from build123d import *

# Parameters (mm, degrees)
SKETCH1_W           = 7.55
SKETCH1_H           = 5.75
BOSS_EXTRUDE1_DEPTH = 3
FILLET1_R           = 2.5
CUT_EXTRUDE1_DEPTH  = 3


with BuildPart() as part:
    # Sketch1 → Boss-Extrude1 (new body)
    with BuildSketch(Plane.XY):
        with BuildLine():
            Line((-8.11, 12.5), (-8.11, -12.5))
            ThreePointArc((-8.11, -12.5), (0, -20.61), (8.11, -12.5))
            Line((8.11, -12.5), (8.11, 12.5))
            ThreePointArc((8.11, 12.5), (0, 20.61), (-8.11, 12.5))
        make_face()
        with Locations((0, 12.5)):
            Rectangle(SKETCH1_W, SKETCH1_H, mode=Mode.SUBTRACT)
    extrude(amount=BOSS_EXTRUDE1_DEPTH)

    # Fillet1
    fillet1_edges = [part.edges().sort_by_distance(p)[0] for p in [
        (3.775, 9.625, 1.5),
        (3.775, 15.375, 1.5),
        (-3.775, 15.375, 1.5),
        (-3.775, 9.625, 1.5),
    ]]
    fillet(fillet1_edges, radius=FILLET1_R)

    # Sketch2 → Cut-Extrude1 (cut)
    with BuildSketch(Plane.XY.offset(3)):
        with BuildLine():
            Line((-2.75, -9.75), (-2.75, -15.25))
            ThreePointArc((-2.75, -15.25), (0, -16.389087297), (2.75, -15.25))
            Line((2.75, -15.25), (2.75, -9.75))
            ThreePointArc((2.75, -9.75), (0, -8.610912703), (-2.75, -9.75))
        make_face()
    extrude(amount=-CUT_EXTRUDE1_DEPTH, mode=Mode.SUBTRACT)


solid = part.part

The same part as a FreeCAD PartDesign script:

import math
import FreeCAD as App
import Part
import Sketcher

V = App.Vector
Q = App.Units.Quantity


def edges_at(feature, points):
    """Names of the edges that pass closest to the given points."""
    edges = feature.Shape.Edges
    near = lambda p: min(range(len(edges)), key=lambda i: edges[i].distToShape(Part.Vertex(*p))[0])
    return sorted({f"Edge{near(p) + 1}" for p in points})

doc = App.newDocument("Part")
body = doc.addObject("PartDesign::Body", "Body")

sketch1 = body.newObject("Sketcher::SketchObject", "Sketch")
sketch1.AttachmentSupport = (doc.getObject("XY_Plane"), [""])
sketch1.MapMode = "FlatFace"
sketch1.addGeometry([
    Part.LineSegment(V(-8, 12, 0), V(-8, -12, 0)),
    Part.ArcOfCircle(Part.Circle(V(0, -12, 0), V(0, 0, 1), 8), math.radians(180), math.radians(360)),
    Part.LineSegment(V(8, -12, 0), V(8, 12, 0)),
    Part.ArcOfCircle(Part.Circle(V(0, 12, 0), V(0, 0, 1), 8), math.radians(0), math.radians(180)),
    Part.LineSegment(V(4, 10, 0), V(-4, 10, 0)),
    Part.LineSegment(V(-4, 10, 0), V(-4, 15, 0)),
    Part.LineSegment(V(-4, 15, 0), V(4, 15, 0)),
    Part.LineSegment(V(4, 15, 0), V(4, 10, 0)),
], False)
sketch1.addConstraint([
    Sketcher.Constraint("Tangent", 0, 2, 1, 1),
    Sketcher.Constraint("Tangent", 1, 2, 2, 1),
    Sketcher.Constraint("Tangent", 2, 2, 3, 1),
    Sketcher.Constraint("Tangent", 3, 2, 0, 1),
    Sketcher.Constraint("Coincident", 4, 2, 5, 1),
    Sketcher.Constraint("Coincident", 5, 2, 6, 1),
    Sketcher.Constraint("Coincident", 6, 2, 7, 1),
    Sketcher.Constraint("Coincident", 7, 2, 4, 1),
    Sketcher.Constraint("Vertical", 0),
    Sketcher.Constraint("Vertical", 2),
    Sketcher.Constraint("Horizontal", 4),
    Sketcher.Constraint("Vertical", 5),
    Sketcher.Constraint("Horizontal", 6),
    Sketcher.Constraint("Vertical", 7),
    Sketcher.Constraint("Symmetric", 1, 3, 3, 3, -1, 1),
    Sketcher.Constraint("DistanceY", 0, 2, 0, 1, Q("25 mm")),
    Sketcher.Constraint("Radius", 1, Q("8.11 mm")),
    Sketcher.Constraint("DistanceX", 4, 2, 4, 1, Q("7.55 mm")),
    Sketcher.Constraint("DistanceY", 5, 1, 5, 2, Q("5.75 mm")),
    Sketcher.Constraint("DistanceX", 4, 2, -1, 1, Q("3.775 mm")),
    Sketcher.Constraint("DistanceY", -1, 1, 4, 2, Q("9.625 mm")),
])
pad1 = body.newObject("PartDesign::Pad", "Pad")
pad1.Profile = sketch1
pad1.Length = 3
doc.recompute()

fillet = body.newObject("PartDesign::Fillet", "Fillet")
fillet.Base = (pad1, edges_at(pad1, [
    (3.775, 9.625, 1.5),
    (3.775, 15.375, 1.5),
    (-3.775, 15.375, 1.5),
    (-3.775, 9.625, 1.5),
]))
fillet.Radius = 2.5

sketch2 = body.newObject("Sketcher::SketchObject", "Sketch001")
sketch2.AttachmentSupport = (doc.getObject("XY_Plane"), [""])
sketch2.MapMode = "FlatFace"
sketch2.AttachmentOffset = App.Placement(V(0, 0, 3), App.Rotation())
sketch2.addGeometry([
    Part.LineSegment(V(-2.8, -9.8, 0), V(-2.8, -15.2, 0)),
    Part.ArcOfCircle(Part.Circle(V(0, -12.5, 0), V(0, 0, 1), 3.9), math.radians(-135), math.radians(-45)),
    Part.LineSegment(V(2.8, -15.2, 0), V(2.8, -9.8, 0)),
    Part.ArcOfCircle(Part.Circle(V(0, -12.5, 0), V(0, 0, 1), 3.9), math.radians(45), math.radians(135)),
], False)
sketch2.addConstraint([
    Sketcher.Constraint("Coincident", 0, 2, 1, 1),
    Sketcher.Constraint("Coincident", 1, 2, 2, 1),
    Sketcher.Constraint("Coincident", 2, 2, 3, 1),
    Sketcher.Constraint("Coincident", 3, 2, 0, 1),
    Sketcher.Constraint("Vertical", 0),
    Sketcher.Constraint("Vertical", 2),
    Sketcher.Constraint("Coincident", 3, 3, 1, 3),
    Sketcher.Constraint("Equal", 1, 3),
    Sketcher.Constraint("Symmetric", 0, 2, 1, 2, -2),
    Sketcher.Constraint("DistanceY", 0, 2, 0, 1, Q("5.5 mm")),
    Sketcher.Constraint("DistanceY", 1, 3, -1, 1, Q("12.5 mm")),
    Sketcher.Constraint("DistanceX", 0, 2, 1, 2, Q("5.5 mm")),
])
pocket1 = body.newObject("PartDesign::Pocket", "Pocket")
pocket1.Profile = sketch2
pocket1.Length = 3

doc.recompute()
